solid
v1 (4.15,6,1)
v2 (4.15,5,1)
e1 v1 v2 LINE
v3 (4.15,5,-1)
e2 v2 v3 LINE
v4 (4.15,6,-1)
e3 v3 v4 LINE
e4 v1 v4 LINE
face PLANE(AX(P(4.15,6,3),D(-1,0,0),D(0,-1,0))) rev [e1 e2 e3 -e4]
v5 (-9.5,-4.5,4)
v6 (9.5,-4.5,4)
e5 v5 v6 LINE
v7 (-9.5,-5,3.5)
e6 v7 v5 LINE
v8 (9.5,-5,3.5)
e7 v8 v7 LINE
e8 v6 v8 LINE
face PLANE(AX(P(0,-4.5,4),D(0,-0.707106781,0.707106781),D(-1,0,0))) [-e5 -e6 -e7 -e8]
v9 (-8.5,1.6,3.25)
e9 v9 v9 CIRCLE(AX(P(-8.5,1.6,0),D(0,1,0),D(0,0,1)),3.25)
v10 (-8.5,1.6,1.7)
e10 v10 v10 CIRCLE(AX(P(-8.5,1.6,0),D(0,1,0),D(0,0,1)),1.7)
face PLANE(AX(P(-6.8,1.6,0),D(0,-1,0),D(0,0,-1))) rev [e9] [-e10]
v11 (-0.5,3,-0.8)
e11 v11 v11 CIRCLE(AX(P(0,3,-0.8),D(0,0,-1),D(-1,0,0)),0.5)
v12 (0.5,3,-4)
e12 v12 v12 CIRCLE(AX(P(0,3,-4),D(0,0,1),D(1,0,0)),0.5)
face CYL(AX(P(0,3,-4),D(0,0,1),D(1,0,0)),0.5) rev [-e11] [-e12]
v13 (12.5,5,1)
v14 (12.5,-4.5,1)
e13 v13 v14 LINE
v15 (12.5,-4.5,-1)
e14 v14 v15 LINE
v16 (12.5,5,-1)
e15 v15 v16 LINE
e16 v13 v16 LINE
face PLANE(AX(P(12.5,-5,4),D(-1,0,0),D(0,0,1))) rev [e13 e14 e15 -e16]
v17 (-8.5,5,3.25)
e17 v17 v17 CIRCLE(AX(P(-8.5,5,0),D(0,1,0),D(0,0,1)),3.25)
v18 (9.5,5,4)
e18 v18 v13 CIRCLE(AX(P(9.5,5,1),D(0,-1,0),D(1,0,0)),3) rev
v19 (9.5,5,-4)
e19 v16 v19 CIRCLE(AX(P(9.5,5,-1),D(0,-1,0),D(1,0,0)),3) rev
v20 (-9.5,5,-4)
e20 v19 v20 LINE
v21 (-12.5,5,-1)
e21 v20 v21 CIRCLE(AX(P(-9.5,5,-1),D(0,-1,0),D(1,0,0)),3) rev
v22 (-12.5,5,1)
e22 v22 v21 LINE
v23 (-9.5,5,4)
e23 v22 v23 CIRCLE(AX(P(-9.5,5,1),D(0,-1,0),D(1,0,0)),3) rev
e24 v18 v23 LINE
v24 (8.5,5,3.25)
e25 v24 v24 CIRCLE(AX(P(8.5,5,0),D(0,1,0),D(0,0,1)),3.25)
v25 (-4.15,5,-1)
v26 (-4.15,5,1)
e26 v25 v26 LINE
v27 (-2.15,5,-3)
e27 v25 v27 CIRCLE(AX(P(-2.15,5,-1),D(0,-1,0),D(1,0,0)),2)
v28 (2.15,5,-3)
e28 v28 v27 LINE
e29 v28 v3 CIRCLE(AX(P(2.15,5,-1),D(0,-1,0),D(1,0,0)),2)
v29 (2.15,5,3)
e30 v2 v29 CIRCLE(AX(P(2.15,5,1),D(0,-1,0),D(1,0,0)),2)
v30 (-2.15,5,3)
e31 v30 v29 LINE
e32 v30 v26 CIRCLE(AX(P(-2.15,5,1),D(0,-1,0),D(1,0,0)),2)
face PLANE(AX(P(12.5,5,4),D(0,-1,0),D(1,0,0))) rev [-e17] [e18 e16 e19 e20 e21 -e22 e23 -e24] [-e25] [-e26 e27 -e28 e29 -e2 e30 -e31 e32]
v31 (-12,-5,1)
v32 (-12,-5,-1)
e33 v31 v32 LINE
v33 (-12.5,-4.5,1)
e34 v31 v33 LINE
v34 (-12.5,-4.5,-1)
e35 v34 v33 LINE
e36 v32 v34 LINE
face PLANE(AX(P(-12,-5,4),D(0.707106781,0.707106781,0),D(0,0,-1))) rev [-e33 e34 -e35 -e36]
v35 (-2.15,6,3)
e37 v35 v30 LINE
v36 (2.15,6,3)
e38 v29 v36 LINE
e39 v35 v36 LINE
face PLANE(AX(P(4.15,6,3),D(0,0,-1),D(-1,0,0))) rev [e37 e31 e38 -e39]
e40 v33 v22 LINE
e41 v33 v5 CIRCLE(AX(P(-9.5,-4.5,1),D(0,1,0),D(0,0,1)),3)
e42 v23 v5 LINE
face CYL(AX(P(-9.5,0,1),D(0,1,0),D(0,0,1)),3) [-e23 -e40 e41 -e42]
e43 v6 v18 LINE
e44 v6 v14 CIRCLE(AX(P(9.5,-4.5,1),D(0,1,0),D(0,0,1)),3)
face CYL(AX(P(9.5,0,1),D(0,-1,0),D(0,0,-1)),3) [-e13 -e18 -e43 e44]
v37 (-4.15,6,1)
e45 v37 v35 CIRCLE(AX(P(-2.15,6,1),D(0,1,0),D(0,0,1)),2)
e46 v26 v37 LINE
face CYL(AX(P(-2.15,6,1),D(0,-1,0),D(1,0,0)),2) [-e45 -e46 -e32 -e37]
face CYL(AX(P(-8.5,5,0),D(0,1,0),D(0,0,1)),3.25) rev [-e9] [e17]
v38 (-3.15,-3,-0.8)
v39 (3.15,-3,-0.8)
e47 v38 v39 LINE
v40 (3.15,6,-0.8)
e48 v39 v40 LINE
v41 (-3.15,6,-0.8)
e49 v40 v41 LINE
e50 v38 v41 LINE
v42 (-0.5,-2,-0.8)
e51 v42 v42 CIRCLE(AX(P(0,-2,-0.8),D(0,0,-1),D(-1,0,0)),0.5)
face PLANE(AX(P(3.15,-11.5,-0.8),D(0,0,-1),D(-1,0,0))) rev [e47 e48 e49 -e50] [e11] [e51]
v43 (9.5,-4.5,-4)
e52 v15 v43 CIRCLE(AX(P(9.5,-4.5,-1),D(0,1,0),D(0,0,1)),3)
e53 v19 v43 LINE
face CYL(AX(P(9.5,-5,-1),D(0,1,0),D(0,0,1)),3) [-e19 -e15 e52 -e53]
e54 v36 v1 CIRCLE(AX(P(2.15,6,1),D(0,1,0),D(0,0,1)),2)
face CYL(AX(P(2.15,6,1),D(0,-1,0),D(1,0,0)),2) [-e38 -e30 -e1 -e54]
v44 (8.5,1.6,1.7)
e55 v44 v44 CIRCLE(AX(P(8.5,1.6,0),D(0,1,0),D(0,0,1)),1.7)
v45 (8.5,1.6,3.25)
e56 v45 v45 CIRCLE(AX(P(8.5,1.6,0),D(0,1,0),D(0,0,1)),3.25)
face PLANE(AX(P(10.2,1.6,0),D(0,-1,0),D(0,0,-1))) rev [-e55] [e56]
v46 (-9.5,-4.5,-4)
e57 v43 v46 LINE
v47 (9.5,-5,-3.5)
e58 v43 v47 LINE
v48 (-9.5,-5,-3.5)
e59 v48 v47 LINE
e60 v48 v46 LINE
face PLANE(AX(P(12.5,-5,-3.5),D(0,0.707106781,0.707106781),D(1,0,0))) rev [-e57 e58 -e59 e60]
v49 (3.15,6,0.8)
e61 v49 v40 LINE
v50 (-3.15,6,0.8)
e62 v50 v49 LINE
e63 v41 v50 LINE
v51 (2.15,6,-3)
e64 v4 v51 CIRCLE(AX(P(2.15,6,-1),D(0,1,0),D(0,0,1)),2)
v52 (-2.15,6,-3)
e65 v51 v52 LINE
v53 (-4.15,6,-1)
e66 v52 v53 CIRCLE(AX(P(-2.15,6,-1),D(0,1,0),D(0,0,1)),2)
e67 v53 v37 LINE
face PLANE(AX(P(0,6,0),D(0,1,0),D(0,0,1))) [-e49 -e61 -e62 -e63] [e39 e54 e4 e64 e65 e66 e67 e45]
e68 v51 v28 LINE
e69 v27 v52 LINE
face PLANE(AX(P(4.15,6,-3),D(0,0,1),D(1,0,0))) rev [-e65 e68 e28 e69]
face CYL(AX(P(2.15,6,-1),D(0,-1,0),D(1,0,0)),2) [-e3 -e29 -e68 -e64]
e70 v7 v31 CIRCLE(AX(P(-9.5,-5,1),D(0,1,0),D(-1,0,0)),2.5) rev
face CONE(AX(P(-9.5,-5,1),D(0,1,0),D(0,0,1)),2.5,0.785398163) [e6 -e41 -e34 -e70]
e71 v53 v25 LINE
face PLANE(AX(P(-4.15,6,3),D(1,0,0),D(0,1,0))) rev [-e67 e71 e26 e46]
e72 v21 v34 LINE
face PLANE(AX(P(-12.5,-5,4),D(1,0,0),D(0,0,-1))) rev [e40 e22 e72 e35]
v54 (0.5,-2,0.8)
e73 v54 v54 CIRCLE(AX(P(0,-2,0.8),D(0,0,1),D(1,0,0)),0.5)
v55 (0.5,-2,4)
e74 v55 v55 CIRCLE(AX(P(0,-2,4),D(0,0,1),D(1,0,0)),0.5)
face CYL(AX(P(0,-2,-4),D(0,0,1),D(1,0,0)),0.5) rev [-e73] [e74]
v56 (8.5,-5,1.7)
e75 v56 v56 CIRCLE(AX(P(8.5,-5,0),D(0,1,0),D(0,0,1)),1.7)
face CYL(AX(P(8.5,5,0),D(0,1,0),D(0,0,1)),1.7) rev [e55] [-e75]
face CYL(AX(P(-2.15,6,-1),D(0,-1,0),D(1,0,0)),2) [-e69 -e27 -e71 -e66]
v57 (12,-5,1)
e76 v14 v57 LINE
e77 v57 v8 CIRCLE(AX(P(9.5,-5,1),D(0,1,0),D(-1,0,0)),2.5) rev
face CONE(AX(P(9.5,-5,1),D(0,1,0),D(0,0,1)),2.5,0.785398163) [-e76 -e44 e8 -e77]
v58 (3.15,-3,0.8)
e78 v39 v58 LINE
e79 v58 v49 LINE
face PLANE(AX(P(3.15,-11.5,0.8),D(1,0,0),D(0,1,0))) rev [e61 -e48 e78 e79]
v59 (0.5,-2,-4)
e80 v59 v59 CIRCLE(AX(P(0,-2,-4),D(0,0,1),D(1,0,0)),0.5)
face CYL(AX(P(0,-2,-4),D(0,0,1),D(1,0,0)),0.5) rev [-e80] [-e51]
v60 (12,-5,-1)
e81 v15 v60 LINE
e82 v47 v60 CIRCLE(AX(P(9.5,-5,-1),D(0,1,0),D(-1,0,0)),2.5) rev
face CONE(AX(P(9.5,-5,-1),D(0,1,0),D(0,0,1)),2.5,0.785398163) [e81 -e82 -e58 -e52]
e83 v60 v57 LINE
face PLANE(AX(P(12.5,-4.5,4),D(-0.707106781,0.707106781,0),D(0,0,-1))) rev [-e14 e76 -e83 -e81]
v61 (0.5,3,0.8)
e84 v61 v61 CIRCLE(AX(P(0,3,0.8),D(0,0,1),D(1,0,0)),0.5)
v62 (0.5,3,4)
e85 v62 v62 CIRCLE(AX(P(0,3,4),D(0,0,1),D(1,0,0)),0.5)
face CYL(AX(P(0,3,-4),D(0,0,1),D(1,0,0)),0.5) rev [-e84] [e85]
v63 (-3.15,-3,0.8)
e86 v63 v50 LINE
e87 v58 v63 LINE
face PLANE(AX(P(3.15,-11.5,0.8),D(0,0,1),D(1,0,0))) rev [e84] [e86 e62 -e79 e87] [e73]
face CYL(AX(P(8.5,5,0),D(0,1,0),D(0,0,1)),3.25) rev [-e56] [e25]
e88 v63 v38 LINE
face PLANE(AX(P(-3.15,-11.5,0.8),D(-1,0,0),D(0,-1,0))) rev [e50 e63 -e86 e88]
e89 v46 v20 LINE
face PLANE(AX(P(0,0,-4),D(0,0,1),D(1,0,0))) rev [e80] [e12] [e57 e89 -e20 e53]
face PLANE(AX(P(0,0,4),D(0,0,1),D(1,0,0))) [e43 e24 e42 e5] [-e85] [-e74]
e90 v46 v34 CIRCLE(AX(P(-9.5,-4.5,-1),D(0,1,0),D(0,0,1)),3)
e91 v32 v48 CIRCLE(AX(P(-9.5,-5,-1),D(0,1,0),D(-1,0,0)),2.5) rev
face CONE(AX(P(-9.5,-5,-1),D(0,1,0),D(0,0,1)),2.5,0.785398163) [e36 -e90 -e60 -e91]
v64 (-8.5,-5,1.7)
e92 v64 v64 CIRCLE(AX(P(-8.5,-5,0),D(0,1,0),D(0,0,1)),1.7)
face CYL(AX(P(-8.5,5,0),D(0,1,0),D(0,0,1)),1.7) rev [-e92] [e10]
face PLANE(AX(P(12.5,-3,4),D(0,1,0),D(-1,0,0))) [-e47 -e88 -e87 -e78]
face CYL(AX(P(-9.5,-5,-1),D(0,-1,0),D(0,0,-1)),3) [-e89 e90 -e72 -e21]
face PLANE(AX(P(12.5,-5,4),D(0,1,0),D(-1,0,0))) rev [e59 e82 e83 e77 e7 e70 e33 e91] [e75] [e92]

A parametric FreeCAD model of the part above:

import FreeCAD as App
import Part
import Sketcher
from FreeCAD import Vector
Q = App.Units.Quantity


def edges_at(feature, points):
    """Names of the edges that pass closest to the given points."""
    edges = feature.Shape.Edges
    near = lambda p: min(range(len(edges)), key=lambda i: edges[i].distToShape(Part.Vertex(*p))[0])
    return sorted({f"Edge{near(p) + 1}" for p in points})

doc = App.newDocument("Part")
body = doc.addObject("PartDesign::Body", "Body")

# Sketch on XY plane
sketch1 = body.newObject("Sketcher::SketchObject", "Sketch")
sketch1.AttachmentSupport = (doc.getObject("XY_Plane"), [""])
sketch1.MapMode = "FlatFace"
sketch1.addGeometry(Part.LineSegment(Vector(-12, 5, 0), Vector(-12, -5, 0)), False)
sketch1.addGeometry(Part.LineSegment(Vector(-12, -5, 0), Vector(12, -5, 0)), False)
sketch1.addGeometry(Part.LineSegment(Vector(12, -5, 0), Vector(12, 5, 0)), False)
sketch1.addGeometry(Part.LineSegment(Vector(12, 5, 0), Vector(-12, 5, 0)), False)
sketch1.addConstraint(Sketcher.Constraint("Coincident", 0, 2, 1, 1))
sketch1.addConstraint(Sketcher.Constraint("Coincident", 1, 2, 2, 1))
sketch1.addConstraint(Sketcher.Constraint("Coincident", 2, 2, 3, 1))
sketch1.addConstraint(Sketcher.Constraint("Coincident", 3, 2, 0, 1))
sketch1.addConstraint(Sketcher.Constraint("Vertical", 0))
sketch1.addConstraint(Sketcher.Constraint("Horizontal", 1))
sketch1.addConstraint(Sketcher.Constraint("Vertical", 2))
sketch1.addConstraint(Sketcher.Constraint("Horizontal", 3))
sketch1.addConstraint(Sketcher.Constraint("Symmetric", 0, 2, 2, 2, -1, 1))
sketch1.addConstraint(Sketcher.Constraint("DistanceX", 1, 1, 1, 2, Q("25 mm")))
sketch1.addConstraint(Sketcher.Constraint("DistanceY", 0, 2, 0, 1, Q("10 mm")))
pad1 = body.newObject("PartDesign::Pad", "Pad")
pad1.Profile = sketch1
pad1.Length = 8
pad1.Midplane = True

# Sketch on XZ plane
sketch2 = body.newObject("Sketcher::SketchObject", "Sketch001")
sketch2.AttachmentSupport = (doc.getObject("XZ_Plane"), [""])
sketch2.MapMode = "FlatFace"
sketch2.AttachmentOffset = App.Placement(Vector(0, 0, -5), App.Rotation())
sketch2.addGeometry(Part.Circle(Vector(-8.5, 0, 0), Vector(0, 0, 1), 1.7), False)
sketch2.addGeometry(Part.Circle(Vector(8.5, 0, 0), Vector(0, 0, 1), 1.7), False)
sketch2.addConstraint(Sketcher.Constraint("Equal", 0, 1))
sketch2.addConstraint(Sketcher.Constraint("Symmetric", 0, 3, 1, 3, -1, 1))
sketch2.addConstraint(Sketcher.Constraint("PointOnObject", 0, 3, -1))
sketch2.addConstraint(Sketcher.Constraint("Diameter", 0, Q("3.4 mm")))
sketch2.addConstraint(Sketcher.Constraint("DistanceX", 0, 3, 1, 3, Q("17 mm")))
doc.recompute()
hole = body.newObject("PartDesign::Hole", "Hole")
hole.Profile = sketch2
hole.ThreadType = "None"
hole.Diameter = 3.4
hole.DepthType = "ThroughAll"
hole.HoleCutType = "Counterbore"
hole.HoleCutDiameter = 6.5
hole.HoleCutDepth = 3.4
hole.Reversed = True
doc.recompute()

fillet = body.newObject("PartDesign::Fillet", "Fillet")
fillet.Base = (hole, edges_at(hole, [
    (12.5, 0, 4),
    (-12.5, 0, 4),
    (12.5, 0, -4),
    (-12.5, 0, -4),
]))
fillet.Radius = 3

# Sketch on XZ plane
sketch3 = body.newObject("Sketcher::SketchObject", "Sketch002")
sketch3.AttachmentSupport = (doc.getObject("XZ_Plane"), [""])
sketch3.MapMode = "FlatFace"
sketch3.AttachmentOffset = App.Placement(Vector(0, 0, -5), App.Rotation())
sketch3.addGeometry(Part.LineSegment(Vector(-3.1, -0.8, 0), Vector(-3.1, 0.8, 0)), False)
sketch3.addGeometry(Part.LineSegment(Vector(-3.1, 0.8, 0), Vector(3.1, 0.8, 0)), False)
sketch3.addGeometry(Part.LineSegment(Vector(3.1, 0.8, 0), Vector(3.1, -0.8, 0)), False)
sketch3.addGeometry(Part.LineSegment(Vector(3.1, -0.8, 0), Vector(-3.1, -0.8, 0)), False)
sketch3.addConstraint(Sketcher.Constraint("Coincident", 0, 2, 1, 1))
sketch3.addConstraint(Sketcher.Constraint("Coincident", 1, 2, 2, 1))
sketch3.addConstraint(Sketcher.Constraint("Coincident", 2, 2, 3, 1))
sketch3.addConstraint(Sketcher.Constraint("Coincident", 3, 2, 0, 1))
sketch3.addConstraint(Sketcher.Constraint("Vertical", 0))
sketch3.addConstraint(Sketcher.Constraint("Horizontal", 1))
sketch3.addConstraint(Sketcher.Constraint("Vertical", 2))
sketch3.addConstraint(Sketcher.Constraint("Horizontal", 3))
sketch3.addConstraint(Sketcher.Constraint("Symmetric", 0, 2, 2, 2, -1, 1))
sketch3.addConstraint(Sketcher.Constraint("DistanceX", 1, 1, 1, 2, Q("6.3 mm")))
sketch3.addConstraint(Sketcher.Constraint("DistanceY", 0, 1, 0, 2, Q("1.6 mm")))
pocket1 = body.newObject("PartDesign::Pocket", "Pocket")
pocket1.Profile = sketch3
pocket1.Length = 8
pocket1.Reversed = True

# Sketch on XZ plane
sketch4 = body.newObject("Sketcher::SketchObject", "Sketch003")
sketch4.AttachmentSupport = (doc.getObject("XZ_Plane"), [""])
sketch4.MapMode = "FlatFace"
sketch4.AttachmentOffset = App.Placement(Vector(0, 0, -5), App.Rotation())
sketch4.addGeometry(Part.LineSegment(Vector(-4.2, -3, 0), Vector(-4.2, 3, 0)), False)
sketch4.addGeometry(Part.LineSegment(Vector(-4.2, 3, 0), Vector(4.2, 3, 0)), False)
sketch4.addGeometry(Part.LineSegment(Vector(4.2, 3, 0), Vector(4.2, -3, 0)), False)
sketch4.addGeometry(Part.LineSegment(Vector(4.2, -3, 0), Vector(-4.2, -3, 0)), False)
sketch4.addGeometry(Part.LineSegment(Vector(3.1, 0.8, 0), Vector(-3.1, 0.8, 0)), False)
sketch4.addGeometry(Part.LineSegment(Vector(-3.1, 0.8, 0), Vector(-3.1, -0.8, 0)), False)
sketch4.addGeometry(Part.LineSegment(Vector(-3.1, -0.8, 0), Vector(3.1, -0.8, 0)), False)
sketch4.addGeometry(Part.LineSegment(Vector(3.1, -0.8, 0), Vector(3.1, 0.8, 0)), False)
sketch4.addConstraint(Sketcher.Constraint("Coincident", 0, 2, 1, 1))
sketch4.addConstraint(Sketcher.Constraint("Coincident", 1, 2, 2, 1))
sketch4.addConstraint(Sketcher.Constraint("Coincident", 2, 2, 3, 1))
sketch4.addConstraint(Sketcher.Constraint("Coincident", 3, 2, 0, 1))
sketch4.addConstraint(Sketcher.Constraint("Coincident", 4, 2, 5, 1))
sketch4.addConstraint(Sketcher.Constraint("Coincident", 5, 2, 6, 1))
sketch4.addConstraint(Sketcher.Constraint("Coincident", 6, 2, 7, 1))
sketch4.addConstraint(Sketcher.Constraint("Coincident", 7, 2, 4, 1))
sketch4.addConstraint(Sketcher.Constraint("Vertical", 0))
sketch4.addConstraint(Sketcher.Constraint("Horizontal", 1))
sketch4.addConstraint(Sketcher.Constraint("Vertical", 2))
sketch4.addConstraint(Sketcher.Constraint("Horizontal", 3))
sketch4.addConstraint(Sketcher.Constraint("Horizontal", 4))
sketch4.addConstraint(Sketcher.Constraint("Vertical", 5))
sketch4.addConstraint(Sketcher.Constraint("Horizontal", 6))
sketch4.addConstraint(Sketcher.Constraint("Vertical", 7))
sketch4.addConstraint(Sketcher.Constraint("Symmetric", 0, 2, 2, 2, -1, 1))
sketch4.addConstraint(Sketcher.Constraint("Symmetric", 4, 2, 6, 2, -1, 1))
sketch4.addConstraint(Sketcher.Constraint("DistanceY", 0, 1, 0, 2, Q("6 mm")))
sketch4.addConstraint(Sketcher.Constraint("DistanceX", 1, 1, 1, 2, Q("8.3 mm")))
sketch4.addConstraint(Sketcher.Constraint("DistanceX", 4, 2, 4, 1, Q("6.3 mm")))
sketch4.addConstraint(Sketcher.Constraint("DistanceY", 5, 2, 5, 1, Q("1.6 mm")))
pad2 = body.newObject("PartDesign::Pad", "Pad001")
pad2.Profile = sketch4
pad2.Length = 1
pad2.Reversed = True
doc.recompute()

fillet2 = body.newObject("PartDesign::Fillet", "Fillet001")
fillet2.Base = (pad2, edges_at(pad2, [
    (-4.15, 5.5, -3),
    (-4.15, 5.5, 3),
    (4.15, 5.5, 3),
    (4.15, 5.5, -3),
]))
fillet2.Radius = 2

# Sketch on XY plane
sketch5 = body.newObject("Sketcher::SketchObject", "Sketch004")
sketch5.AttachmentSupport = (doc.getObject("XY_Plane"), [""])
sketch5.MapMode = "FlatFace"
sketch5.AttachmentOffset = App.Placement(Vector(0, 0, 4), App.Rotation())
sketch5.addGeometry(Part.Circle(Vector(0, 3, 0), Vector(0, 0, 1), 0.5), False)
sketch5.addGeometry(Part.Circle(Vector(0, -2, 0), Vector(0, 0, 1), 0.5), False)
sketch5.addConstraint(Sketcher.Constraint("Equal", 0, 1))
sketch5.addConstraint(Sketcher.Constraint("PointOnObject", 0, 3, -2))
sketch5.addConstraint(Sketcher.Constraint("PointOnObject", 1, 3, -2))
sketch5.addConstraint(Sketcher.Constraint("Diameter", 0, Q("1 mm")))
sketch5.addConstraint(Sketcher.Constraint("DistanceY", -1, 1, 0, 3, Q("3 mm")))
sketch5.addConstraint(Sketcher.Constraint("DistanceY", 1, 3, -1, 1, Q("2 mm")))
pocket2 = body.newObject("PartDesign::Pocket", "Pocket001")
pocket2.Profile = sketch5
pocket2.Type = "ThroughAll"
doc.recompute()

chamfer = body.newObject("PartDesign::Chamfer", "Chamfer")
chamfer.Base = (pocket2, edges_at(pocket2, [
    (12.5, -5, 0),
    (0, -5, -4),
    (0, -5, 4),
    (-12.5, -5, 0),
    (-11.621, -5, 3.121),
    (-11.621, -5, -3.121),
    (11.621, -5, 3.121),
    (11.621, -5, -3.121),
]))
chamfer.Size = 0.5

doc.recompute()
